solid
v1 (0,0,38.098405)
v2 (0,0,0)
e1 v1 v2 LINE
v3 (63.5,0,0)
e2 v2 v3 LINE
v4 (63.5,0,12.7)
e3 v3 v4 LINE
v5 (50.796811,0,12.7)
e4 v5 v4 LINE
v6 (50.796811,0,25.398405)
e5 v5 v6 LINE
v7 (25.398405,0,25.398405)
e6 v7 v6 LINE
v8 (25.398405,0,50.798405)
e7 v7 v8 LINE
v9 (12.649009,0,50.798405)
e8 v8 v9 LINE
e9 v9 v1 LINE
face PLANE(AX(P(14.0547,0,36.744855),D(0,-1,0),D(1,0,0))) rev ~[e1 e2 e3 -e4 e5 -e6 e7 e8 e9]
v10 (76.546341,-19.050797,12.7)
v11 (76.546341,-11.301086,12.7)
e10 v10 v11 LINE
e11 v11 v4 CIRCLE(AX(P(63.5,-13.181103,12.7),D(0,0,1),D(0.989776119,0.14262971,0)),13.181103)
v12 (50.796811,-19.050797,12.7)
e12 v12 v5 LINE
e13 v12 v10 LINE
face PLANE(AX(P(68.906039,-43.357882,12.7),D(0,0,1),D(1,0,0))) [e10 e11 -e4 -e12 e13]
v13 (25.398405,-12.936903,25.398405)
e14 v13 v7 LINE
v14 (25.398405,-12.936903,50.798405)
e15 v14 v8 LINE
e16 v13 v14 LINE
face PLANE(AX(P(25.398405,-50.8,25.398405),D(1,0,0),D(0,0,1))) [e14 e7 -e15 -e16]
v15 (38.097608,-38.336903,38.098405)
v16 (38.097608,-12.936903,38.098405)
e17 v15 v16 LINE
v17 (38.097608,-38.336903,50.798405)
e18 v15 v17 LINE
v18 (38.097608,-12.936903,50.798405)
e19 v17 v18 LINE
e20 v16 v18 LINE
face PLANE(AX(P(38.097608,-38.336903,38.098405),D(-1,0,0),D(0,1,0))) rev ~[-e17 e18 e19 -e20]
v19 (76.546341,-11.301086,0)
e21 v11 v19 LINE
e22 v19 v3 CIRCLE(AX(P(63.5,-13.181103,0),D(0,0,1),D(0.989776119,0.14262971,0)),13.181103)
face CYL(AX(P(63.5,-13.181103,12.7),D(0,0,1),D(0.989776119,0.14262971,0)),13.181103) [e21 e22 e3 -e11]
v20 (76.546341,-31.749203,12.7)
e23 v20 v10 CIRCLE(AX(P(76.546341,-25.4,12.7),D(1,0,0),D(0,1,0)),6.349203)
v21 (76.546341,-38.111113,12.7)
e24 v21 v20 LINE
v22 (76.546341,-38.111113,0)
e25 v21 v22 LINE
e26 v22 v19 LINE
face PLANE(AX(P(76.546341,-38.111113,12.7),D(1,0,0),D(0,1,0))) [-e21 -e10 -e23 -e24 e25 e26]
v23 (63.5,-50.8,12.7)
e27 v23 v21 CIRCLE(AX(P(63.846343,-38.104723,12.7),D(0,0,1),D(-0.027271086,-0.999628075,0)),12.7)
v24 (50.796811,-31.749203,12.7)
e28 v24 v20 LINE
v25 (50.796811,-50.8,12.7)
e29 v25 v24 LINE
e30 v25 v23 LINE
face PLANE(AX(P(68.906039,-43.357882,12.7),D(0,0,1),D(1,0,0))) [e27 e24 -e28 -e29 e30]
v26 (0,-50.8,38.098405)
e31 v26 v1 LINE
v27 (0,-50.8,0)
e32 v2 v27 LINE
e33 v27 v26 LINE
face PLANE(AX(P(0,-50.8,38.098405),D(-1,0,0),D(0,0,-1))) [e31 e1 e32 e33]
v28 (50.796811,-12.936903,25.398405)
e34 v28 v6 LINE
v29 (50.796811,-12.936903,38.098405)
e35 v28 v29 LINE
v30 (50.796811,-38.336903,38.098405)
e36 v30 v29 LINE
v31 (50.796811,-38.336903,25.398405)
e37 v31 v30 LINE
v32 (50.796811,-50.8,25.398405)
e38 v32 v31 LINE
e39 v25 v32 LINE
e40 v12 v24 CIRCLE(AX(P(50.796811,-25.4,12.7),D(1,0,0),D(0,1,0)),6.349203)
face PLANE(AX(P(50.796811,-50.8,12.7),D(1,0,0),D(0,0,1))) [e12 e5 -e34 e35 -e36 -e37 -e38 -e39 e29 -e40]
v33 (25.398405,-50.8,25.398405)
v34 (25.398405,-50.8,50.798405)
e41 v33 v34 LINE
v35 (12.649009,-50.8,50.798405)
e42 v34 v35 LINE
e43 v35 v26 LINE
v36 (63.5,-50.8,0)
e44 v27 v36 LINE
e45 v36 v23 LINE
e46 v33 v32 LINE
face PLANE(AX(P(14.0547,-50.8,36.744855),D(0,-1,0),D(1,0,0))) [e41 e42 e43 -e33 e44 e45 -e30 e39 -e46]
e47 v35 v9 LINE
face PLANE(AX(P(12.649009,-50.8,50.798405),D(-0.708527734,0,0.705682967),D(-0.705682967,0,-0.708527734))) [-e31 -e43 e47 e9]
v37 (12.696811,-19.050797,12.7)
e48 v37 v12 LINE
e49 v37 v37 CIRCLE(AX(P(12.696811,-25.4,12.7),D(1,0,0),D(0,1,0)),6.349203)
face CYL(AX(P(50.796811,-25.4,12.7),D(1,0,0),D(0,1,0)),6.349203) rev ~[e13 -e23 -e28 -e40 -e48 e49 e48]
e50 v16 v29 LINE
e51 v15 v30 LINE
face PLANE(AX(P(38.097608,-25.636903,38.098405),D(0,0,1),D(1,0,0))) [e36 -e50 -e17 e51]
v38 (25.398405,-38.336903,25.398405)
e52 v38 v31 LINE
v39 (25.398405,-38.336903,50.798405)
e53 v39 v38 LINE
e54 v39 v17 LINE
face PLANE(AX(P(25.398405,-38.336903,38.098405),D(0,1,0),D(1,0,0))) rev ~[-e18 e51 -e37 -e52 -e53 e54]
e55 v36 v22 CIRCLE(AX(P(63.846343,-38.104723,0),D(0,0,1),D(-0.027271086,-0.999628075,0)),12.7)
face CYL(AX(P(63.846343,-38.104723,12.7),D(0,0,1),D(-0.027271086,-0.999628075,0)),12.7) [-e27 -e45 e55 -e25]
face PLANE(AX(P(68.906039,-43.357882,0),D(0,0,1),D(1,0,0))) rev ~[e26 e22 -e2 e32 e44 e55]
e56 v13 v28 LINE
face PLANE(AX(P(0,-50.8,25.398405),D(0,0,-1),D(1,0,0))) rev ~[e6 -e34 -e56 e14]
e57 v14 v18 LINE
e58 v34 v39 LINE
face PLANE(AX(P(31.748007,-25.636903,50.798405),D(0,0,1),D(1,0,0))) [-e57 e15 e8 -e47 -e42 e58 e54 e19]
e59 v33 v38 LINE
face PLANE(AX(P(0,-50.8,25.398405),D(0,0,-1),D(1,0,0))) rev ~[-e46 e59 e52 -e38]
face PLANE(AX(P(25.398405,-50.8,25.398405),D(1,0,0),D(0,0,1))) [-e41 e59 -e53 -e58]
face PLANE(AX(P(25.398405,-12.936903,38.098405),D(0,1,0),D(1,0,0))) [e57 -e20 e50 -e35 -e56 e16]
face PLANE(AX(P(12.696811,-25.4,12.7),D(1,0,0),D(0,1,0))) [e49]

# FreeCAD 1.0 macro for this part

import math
import FreeCAD as App
import Part
import Sketcher
Q = App.Units.Quantity

doc = App.newDocument("Part")
body = doc.addObject("PartDesign::Body", "Body")

sketch1 = body.newObject("Sketcher::SketchObject", "Sketch")
sketch1.AttachmentSupport = (doc.getObject("XZ_Plane"), [""])
sketch1.MapMode = "FlatFace"
sketch1.addGeometry(Part.LineSegment(App.Vector(0, 12.7, 0), App.Vector(0, 0, 0)), False)
sketch1.addGeometry(Part.LineSegment(App.Vector(0, 0, 0), App.Vector(63.5, 0, 0)), False)
sketch1.addGeometry(Part.LineSegment(App.Vector(63.5, 0, 0), App.Vector(63.5, 12.7, 0)), False)
sketch1.addGeometry(Part.LineSegment(App.Vector(63.5, 12.7, 0), App.Vector(0, 12.7, 0)), False)
sketch1.addConstraint(Sketcher.Constraint("Coincident", 0, 2, 1, 1))
sketch1.addConstraint(Sketcher.Constraint("Coincident", 1, 2, 2, 1))
sketch1.addConstraint(Sketcher.Constraint("Coincident", 2, 2, 3, 1))
sketch1.addConstraint(Sketcher.Constraint("Coincident", 3, 2, 0, 1))
sketch1.addConstraint(Sketcher.Constraint("Vertical", 0))
sketch1.addConstraint(Sketcher.Constraint("Horizontal", 1))
sketch1.addConstraint(Sketcher.Constraint("Vertical", 2))
sketch1.addConstraint(Sketcher.Constraint("Horizontal", 3))
sketch1.addConstraint(Sketcher.Constraint("Coincident", 0, 2, -1, 1))
sketch1.addConstraint(Sketcher.Constraint("DistanceX", 1, 1, 1, 2, Q("2.5 in")))
sketch1.addConstraint(Sketcher.Constraint("DistanceY", 0, 2, 0, 1, Q("0.5 in")))
pad1 = body.newObject("PartDesign::Pad", "Pad")
pad1.Profile = sketch1
pad1.Length = Q("2 in")

sketch2 = body.newObject("Sketcher::SketchObject", "Sketch001")
sketch2.AttachmentSupport = (doc.getObject("XZ_Plane"), [""])
sketch2.MapMode = "FlatFace"
sketch2.AttachmentOffset = App.Placement(App.Vector(0, 0, 2 * 25.4), App.Rotation())
sketch2.addGeometry(Part.LineSegment(App.Vector(0, 25.398405, 0), App.Vector(0, 12.7, 0)), False)
sketch2.addGeometry(Part.LineSegment(App.Vector(0, 12.7, 0), App.Vector(50.796811, 12.7, 0)), False)
sketch2.addGeometry(Part.LineSegment(App.Vector(50.796811, 12.7, 0), App.Vector(50.796811, 25.398405, 0)), False)
sketch2.addGeometry(Part.LineSegment(App.Vector(50.796811, 25.398405, 0), App.Vector(0, 25.398405, 0)), False)
sketch2.addConstraint(Sketcher.Constraint("Coincident", 0, 2, 1, 1))
sketch2.addConstraint(Sketcher.Constraint("Coincident", 1, 2, 2, 1))
sketch2.addConstraint(Sketcher.Constraint("Coincident", 2, 2, 3, 1))
sketch2.addConstraint(Sketcher.Constraint("Coincident", 3, 2, 0, 1))
sketch2.addConstraint(Sketcher.Constraint("Vertical", 0))
sketch2.addConstraint(Sketcher.Constraint("Horizontal", 1))
sketch2.addConstraint(Sketcher.Constraint("Vertical", 2))
sketch2.addConstraint(Sketcher.Constraint("Horizontal", 3))
sketch2.addConstraint(Sketcher.Constraint("PointOnObject", 0, 2, -2))
sketch2.addConstraint(Sketcher.Constraint("DistanceY", -1, 1, 0, 2, Q("0.5 in")))
sketch2.addConstraint(Sketcher.Constraint("DistanceX", 1, 1, 1, 2, 50.796811))
sketch2.addConstraint(Sketcher.Constraint("DistanceY", 0, 2, 0, 1, 12.698405))
pad2 = body.newObject("PartDesign::Pad", "Pad001")
pad2.Profile = sketch2
pad2.Length = Q("2 in")
pad2.Reversed = True

sketch3 = body.newObject("Sketcher::SketchObject", "Sketch002")
sketch3.AttachmentSupport = (doc.getObject("XZ_Plane"), [""])
sketch3.MapMode = "FlatFace"
sketch3.AttachmentOffset = App.Placement(App.Vector(0, 0, 2 * 25.4), App.Rotation())
sketch3.addGeometry(Part.LineSegment(App.Vector(0, 38.098405, 0), App.Vector(0, 25.398405, 0)), False)
sketch3.addGeometry(Part.LineSegment(App.Vector(0, 25.398405, 0), App.Vector(25.398405, 25.398405, 0)), False)
sketch3.addGeometry(Part.LineSegment(App.Vector(25.398405, 25.398405, 0), App.Vector(25.398405, 50.798405, 0)), False)
sketch3.addGeometry(Part.LineSegment(App.Vector(25.398405, 50.798405, 0), App.Vector(12.649009, 50.798405, 0)), False)
sketch3.addGeometry(Part.LineSegment(App.Vector(12.649009, 50.798405, 0), App.Vector(0, 38.098405, 0)), False)
sketch3.addConstraint(Sketcher.Constraint("Coincident", 0, 2, 1, 1))
sketch3.addConstraint(Sketcher.Constraint("Coincident", 1, 2, 2, 1))
sketch3.addConstraint(Sketcher.Constraint("Coincident", 2, 2, 3, 1))
sketch3.addConstraint(Sketcher.Constraint("Coincident", 3, 2, 4, 1))
sketch3.addConstraint(Sketcher.Constraint("Coincident", 4, 2, 0, 1))
sketch3.addConstraint(Sketcher.Constraint("Vertical", 0))
sketch3.addConstraint(Sketcher.Constraint("Horizontal", 1))
sketch3.addConstraint(Sketcher.Constraint("Vertical", 2))
sketch3.addConstraint(Sketcher.Constraint("Horizontal", 3))
sketch3.addConstraint(Sketcher.Constraint("PointOnObject", 0, 2, -2))
sketch3.addConstraint(Sketcher.Constraint("DistanceY", 2, 1, 2, 2, Q("1 in")))
sketch3.addConstraint(Sketcher.Constraint("DistanceY", 0, 2, 0, 1, Q("0.5 in")))
sketch3.addConstraint(Sketcher.Constraint("DistanceX", 1, 1, 1, 2, 25.398405))
sketch3.addConstraint(Sketcher.Constraint("DistanceX", 3, 2, 3, 1, 12.749396))
sketch3.addConstraint(Sketcher.Constraint("DistanceY", -1, 1, 0, 2, 25.398405))
pad3 = body.newObject("PartDesign::Pad", "Pad002")
pad3.Profile = sketch3
pad3.Length = Q("2 in")
pad3.Reversed = True

sketch4 = body.newObject("Sketcher::SketchObject", "Sketch003")
sketch4.AttachmentSupport = (doc.getObject("XY_Plane"), [""])
sketch4.MapMode = "FlatFace"
sketch4.AttachmentOffset = App.Placement(App.Vector(0, 0, 25.398405), App.Rotation())
sketch4.addGeometry(Part.LineSegment(App.Vector(25.398405, -12.936903, 0), App.Vector(25.398405, -38.336903, 0)), False)
sketch4.addGeometry(Part.LineSegment(App.Vector(25.398405, -38.336903, 0), App.Vector(50.796811, -38.336903, 0)), False)
sketch4.addGeometry(Part.LineSegment(App.Vector(50.796811, -38.336903, 0), App.Vector(50.796811, -12.936903, 0)), False)
sketch4.addGeometry(Part.LineSegment(App.Vector(50.796811, -12.936903, 0), App.Vector(25.398405, -12.936903, 0)), False)
sketch4.addConstraint(Sketcher.Constraint("Coincident", 0, 2, 1, 1))
sketch4.addConstraint(Sketcher.Constraint("Coincident", 1, 2, 2, 1))
sketch4.addConstraint(Sketcher.Constraint("Coincident", 2, 2, 3, 1))
sketch4.addConstraint(Sketcher.Constraint("Coincident", 3, 2, 0, 1))
sketch4.addConstraint(Sketcher.Constraint("Vertical", 0))
sketch4.addConstraint(Sketcher.Constraint("Horizontal", 1))
sketch4.addConstraint(Sketcher.Constraint("Vertical", 2))
sketch4.addConstraint(Sketcher.Constraint("Horizontal", 3))
sketch4.addConstraint(Sketcher.Constraint("DistanceY", 0, 2, 0, 1, Q("1 in")))
sketch4.addConstraint(Sketcher.Constraint("DistanceX", 1, 1, 1, 2, 25.398405))
sketch4.addConstraint(Sketcher.Constraint("DistanceX", -1, 1, 1, 2, 50.796811))
sketch4.addConstraint(Sketcher.Constraint("DistanceY", 0, 2, -1, 1, 38.336903))
pad4 = body.newObject("PartDesign::Pad", "Pad003")
pad4.Profile = sketch4
pad4.Length = Q("0.5 in")

sketch5 = body.newObject("Sketcher::SketchObject", "Sketch004")
sketch5.AttachmentSupport = (doc.getObject("XY_Plane"), [""])
sketch5.MapMode = "FlatFace"
sketch5.AttachmentOffset = App.Placement(App.Vector(0, 0, 38.098405), App.Rotation())
sketch5.addGeometry(Part.LineSegment(App.Vector(25.398405, -12.936903, 0), App.Vector(25.398405, -38.336903, 0)), False)
sketch5.addGeometry(Part.LineSegment(App.Vector(25.398405, -38.336903, 0), App.Vector(38.097608, -38.336903, 0)), False)
sketch5.addGeometry(Part.LineSegment(App.Vector(38.097608, -38.336903, 0), App.Vector(38.097608, -12.936903, 0)), False)
sketch5.addGeometry(Part.LineSegment(App.Vector(38.097608, -12.936903, 0), App.Vector(25.398405, -12.936903, 0)), False)
sketch5.addConstraint(Sketcher.Constraint("Coincident", 0, 2, 1, 1))
sketch5.addConstraint(Sketcher.Constraint("Coincident", 1, 2, 2, 1))
sketch5.addConstraint(Sketcher.Constraint("Coincident", 2, 2, 3, 1))
sketch5.addConstraint(Sketcher.Constraint("Coincident", 3, 2, 0, 1))
sketch5.addConstraint(Sketcher.Constraint("Vertical", 0))
sketch5.addConstraint(Sketcher.Constraint("Horizontal", 1))
sketch5.addConstraint(Sketcher.Constraint("Vertical", 2))
sketch5.addConstraint(Sketcher.Constraint("Horizontal", 3))
sketch5.addConstraint(Sketcher.Constraint("DistanceY", 0, 2, 0, 1, Q("1 in")))
sketch5.addConstraint(Sketcher.Constraint("DistanceX", 1, 1, 1, 2, 12.699203))
sketch5.addConstraint(Sketcher.Constraint("DistanceX", -1, 1, 0, 2, 25.398405))
sketch5.addConstraint(Sketcher.Constraint("DistanceY", 0, 2, -1, 1, 38.336903))
pad5 = body.newObject("PartDesign::Pad", "Pad004")
pad5.Profile = sketch5
pad5.Length = Q("0.5 in")

sketch6 = body.newObject("Sketcher::SketchObject", "Sketch005")
sketch6.AttachmentSupport = (doc.getObject("XY_Plane"), [""])
sketch6.MapMode = "FlatFace"
sketch6.AttachmentOffset = App.Placement(App.Vector(0, 0, 0.5 * 25.4), App.Rotation())
sketch6.addGeometry(Part.LineSegment(App.Vector(63.5, -11.301086, 0), App.Vector(63.5, -38.111113, 0)), False)
sketch6.addGeometry(Part.LineSegment(App.Vector(63.5, -38.111113, 0), App.Vector(76.546341, -38.111113, 0)), False)
sketch6.addGeometry(Part.LineSegment(App.Vector(76.546341, -38.111113, 0), App.Vector(76.546341, -11.301086, 0)), False)
sketch6.addGeometry(Part.LineSegment(App.Vector(76.546341, -11.301086, 0), App.Vector(63.5, -11.301086, 0)), False)
sketch6.addConstraint(Sketcher.Constraint("Coincident", 0, 2, 1, 1))
sketch6.addConstraint(Sketcher.Constraint("Coincident", 1, 2, 2, 1))
sketch6.addConstraint(Sketcher.Constraint("Coincident", 2, 2, 3, 1))
sketch6.addConstraint(Sketcher.Constraint("Coincident", 3, 2, 0, 1))
sketch6.addConstraint(Sketcher.Constraint("Vertical", 0))
sketch6.addConstraint(Sketcher.Constraint("Horizontal", 1))
sketch6.addConstraint(Sketcher.Constraint("Vertical", 2))
sketch6.addConstraint(Sketcher.Constraint("Horizontal", 3))
sketch6.addConstraint(Sketcher.Constraint("DistanceX", -1, 1, 0, 2, Q("2.5 in")))
sketch6.addConstraint(Sketcher.Constraint("DistanceX", 1, 1, 1, 2, 13.046341))
sketch6.addConstraint(Sketcher.Constraint("DistanceY", 0, 2, 0, 1, 26.810027))
sketch6.addConstraint(Sketcher.Constraint("DistanceY", 0, 2, -1, 1, 38.111113))
pad6 = body.newObject("PartDesign::Pad", "Pad005")
pad6.Profile = sketch6
pad6.Length = Q("0.5 in")
pad6.Reversed = True

sketch7 = body.newObject("Sketcher::SketchObject", "Sketch006")
sketch7.AttachmentSupport = (doc.getObject("XY_Plane"), [""])
sketch7.MapMode = "FlatFace"
sketch7.AttachmentOffset = App.Placement(App.Vector(0, 0, 0.5 * 25.4), App.Rotation())
sketch7.addGeometry(Part.LineSegment(App.Vector(63.5, -11.301086, 0), App.Vector(76.546341, -11.301086, 0)), False)
sketch7.addGeometry(Part.ArcOfCircle(Part.Circle(App.Vector(63.5, -13.181103, 0), App.Vector(0, 0, 1), 13.181103), math.radians(8.200045), math.radians(90)), False)
sketch7.addGeometry(Part.LineSegment(App.Vector(63.5, 0, 0), App.Vector(63.5, -11.301086, 0)), False)
sketch7.addConstraint(Sketcher.Constraint("Coincident", 0, 2, 1, 1))
sketch7.addConstraint(Sketcher.Constraint("Coincident", 1, 2, 2, 1))
sketch7.addConstraint(Sketcher.Constraint("Coincident", 2, 2, 0, 1))
sketch7.addConstraint(Sketcher.Constraint("Horizontal", 0))
sketch7.addConstraint(Sketcher.Constraint("Vertical", 2))
sketch7.addConstraint(Sketcher.Constraint("PointOnObject", 1, 2, -1))
sketch7.addConstraint(Sketcher.Constraint("DistanceX", -1, 1, 1, 3, Q("2.5 in")))
sketch7.addConstraint(Sketcher.Constraint("DistanceX", -1, 1, 1, 2, Q("2.5 in")))
sketch7.addConstraint(Sketcher.Constraint("Radius", 1, 13.181103))
sketch7.addConstraint(Sketcher.Constraint("DistanceX", 0, 1, 0, 2, 13.046341))
pad7 = body.newObject("PartDesign::Pad", "Pad006")
pad7.Profile = sketch7
pad7.Length = Q("0.5 in")
pad7.Reversed = True

sketch8 = body.newObject("Sketcher::SketchObject", "Sketch007")
sketch8.AttachmentSupport = (doc.getObject("XY_Plane"), [""])
sketch8.MapMode = "FlatFace"
sketch8.AttachmentOffset = App.Placement(App.Vector(0, 0, 0.5 * 25.4), App.Rotation())
sketch8.addGeometry(Part.LineSegment(App.Vector(63.5, -38.111113, 0), App.Vector(63.5, -50.8, 0)), False)
sketch8.addGeometry(Part.ArcOfCircle(Part.Circle(App.Vector(63.846343, -38.104723, 0), App.Vector(0, 0, 1), 12.7), math.radians(-91.562712), math.radians(-0.028826)), False)
sketch8.addGeometry(Part.LineSegment(App.Vector(76.546341, -38.111113, 0), App.Vector(63.5, -38.111113, 0)), False)
sketch8.addConstraint(Sketcher.Constraint("Coincident", 0, 2, 1, 1))
sketch8.addConstraint(Sketcher.Constraint("Coincident", 1, 2, 2, 1))
sketch8.addConstraint(Sketcher.Constraint("Coincident", 2, 2, 0, 1))
sketch8.addConstraint(Sketcher.Constraint("Vertical", 0))
sketch8.addConstraint(Sketcher.Constraint("Horizontal", 2))
sketch8.addConstraint(Sketcher.Constraint("Radius", 1, Q("0.5 in")))
sketch8.addConstraint(Sketcher.Constraint("DistanceY", 0, 2, -1, 1, Q("2 in")))
sketch8.addConstraint(Sketcher.Constraint("DistanceX", -1, 1, 0, 2, Q("2.5 in")))
sketch8.addConstraint(Sketcher.Constraint("DistanceX", 2, 2, 2, 1, 13.046341))
sketch8.addConstraint(Sketcher.Constraint("DistanceY", 0, 2, 0, 1, 12.688887))
pad8 = body.newObject("PartDesign::Pad", "Pad007")
pad8.Profile = sketch8
pad8.Length = Q("0.5 in")
pad8.Reversed = True

sketch9 = body.newObject("Sketcher::SketchObject", "Sketch008")
sketch9.AttachmentSupport = (doc.getObject("YZ_Plane"), [""])
sketch9.MapMode = "FlatFace"
sketch9.AttachmentOffset = App.Placement(App.Vector(0, 0, 50.796811), App.Rotation())
sketch9.addGeometry(Part.Circle(App.Vector(-25.4, 12.7, 0), App.Vector(0, 0, 1), 6.349203), False)
sketch9.addConstraint(Sketcher.Constraint("DistanceX", 0, 3, -1, 1, Q("1 in")))
sketch9.addConstraint(Sketcher.Constraint("DistanceY", -1, 1, 0, 3, Q("0.5 in")))
sketch9.addConstraint(Sketcher.Constraint("Diameter", 0, 12.698405))
pocket1 = body.newObject("PartDesign::Pocket", "Pocket")
pocket1.Profile = sketch9
pocket1.Length = Q("3 in")
pocket1.Midplane = True

doc.recompute()
